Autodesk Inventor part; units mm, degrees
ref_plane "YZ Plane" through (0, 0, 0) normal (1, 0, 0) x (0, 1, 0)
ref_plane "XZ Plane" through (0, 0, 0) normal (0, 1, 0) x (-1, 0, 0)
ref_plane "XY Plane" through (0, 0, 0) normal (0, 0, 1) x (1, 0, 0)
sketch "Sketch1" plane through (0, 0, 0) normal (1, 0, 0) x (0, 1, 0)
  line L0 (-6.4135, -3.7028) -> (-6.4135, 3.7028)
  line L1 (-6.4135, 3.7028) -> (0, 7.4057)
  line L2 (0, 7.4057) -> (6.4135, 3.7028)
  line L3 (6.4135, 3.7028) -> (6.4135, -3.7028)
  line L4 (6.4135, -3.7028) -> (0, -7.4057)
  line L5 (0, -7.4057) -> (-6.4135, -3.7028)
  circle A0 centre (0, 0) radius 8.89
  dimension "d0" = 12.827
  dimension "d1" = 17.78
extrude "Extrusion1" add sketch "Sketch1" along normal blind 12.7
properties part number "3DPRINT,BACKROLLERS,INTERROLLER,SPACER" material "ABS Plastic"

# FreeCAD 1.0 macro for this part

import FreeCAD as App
import Part
import Sketcher
from FreeCAD import Vector
Q = App.Units.Quantity

doc = App.newDocument("Part")
body = doc.addObject("PartDesign::Body", "Body")

sketch1 = body.newObject("Sketcher::SketchObject", "Sketch")
sketch1.AttachmentSupport = (doc.getObject("YZ_Plane"), [""])
sketch1.MapMode = "FlatFace"
sketch1.addGeometry(Part.Circle(Vector(0, 0, 0), Vector(0, 0, 1), 9), False)
sketch1.addGeometry(Part.LineSegment(Vector(0, -7, 0), Vector(-6, -4, 0)), False)
sketch1.addGeometry(Part.LineSegment(Vector(-6, -4, 0), Vector(-6, 4, 0)), False)
sketch1.addGeometry(Part.LineSegment(Vector(-6, 4, 0), Vector(0, 7, 0)), False)
sketch1.addGeometry(Part.LineSegment(Vector(0, 7, 0), Vector(6, 4, 0)), False)
sketch1.addGeometry(Part.LineSegment(Vector(6, 4, 0), Vector(6, -4, 0)), False)
sketch1.addGeometry(Part.LineSegment(Vector(6, -4, 0), Vector(0, -7, 0)), False)
sketch1.addConstraint(Sketcher.Constraint("Coincident", 1, 2, 2, 1))
sketch1.addConstraint(Sketcher.Constraint("Coincident", 2, 2, 3, 1))
sketch1.addConstraint(Sketcher.Constraint("Coincident", 3, 2, 4, 1))
sketch1.addConstraint(Sketcher.Constraint("Coincident", 4, 2, 5, 1))
sketch1.addConstraint(Sketcher.Constraint("Coincident", 5, 2, 6, 1))
sketch1.addConstraint(Sketcher.Constraint("Coincident", 6, 2, 1, 1))
sketch1.addConstraint(Sketcher.Constraint("Vertical", 2))
sketch1.addConstraint(Sketcher.Constraint("Vertical", 5))
sketch1.addConstraint(Sketcher.Constraint("Coincident", 0, 3, -1, 1))
sketch1.addConstraint(Sketcher.Constraint("Symmetric", 1, 2, 4, 2, -1, 1))
sketch1.addConstraint(Sketcher.Constraint("Symmetric", 3, 2, 6, 2, -1, 1))
sketch1.addConstraint(Sketcher.Constraint("PointOnObject", 3, 2, -2))
sketch1.addConstraint(Sketcher.Constraint("Parallel", 3, 6))
sketch1.addConstraint(Sketcher.Constraint("Horizontal", 2, 2, 4, 2))
sketch1.addConstraint(Sketcher.Constraint("Diameter", 0, Q("0.7 in")))
sketch1.addConstraint(Sketcher.Constraint("Angle", 1, Q("149.9996 deg")))
sketch1.addConstraint(Sketcher.Constraint("DistanceX", 2, 2, 4, 2, Q("0.505 in")))
sketch1.addConstraint(Sketcher.Constraint("DistanceY", 2, 1, 2, 2, 7.4056))
pad1 = body.newObject("PartDesign::Pad", "Pad")
pad1.Profile = sketch1
pad1.Length = Q("0.5 in")

doc.recompute()
